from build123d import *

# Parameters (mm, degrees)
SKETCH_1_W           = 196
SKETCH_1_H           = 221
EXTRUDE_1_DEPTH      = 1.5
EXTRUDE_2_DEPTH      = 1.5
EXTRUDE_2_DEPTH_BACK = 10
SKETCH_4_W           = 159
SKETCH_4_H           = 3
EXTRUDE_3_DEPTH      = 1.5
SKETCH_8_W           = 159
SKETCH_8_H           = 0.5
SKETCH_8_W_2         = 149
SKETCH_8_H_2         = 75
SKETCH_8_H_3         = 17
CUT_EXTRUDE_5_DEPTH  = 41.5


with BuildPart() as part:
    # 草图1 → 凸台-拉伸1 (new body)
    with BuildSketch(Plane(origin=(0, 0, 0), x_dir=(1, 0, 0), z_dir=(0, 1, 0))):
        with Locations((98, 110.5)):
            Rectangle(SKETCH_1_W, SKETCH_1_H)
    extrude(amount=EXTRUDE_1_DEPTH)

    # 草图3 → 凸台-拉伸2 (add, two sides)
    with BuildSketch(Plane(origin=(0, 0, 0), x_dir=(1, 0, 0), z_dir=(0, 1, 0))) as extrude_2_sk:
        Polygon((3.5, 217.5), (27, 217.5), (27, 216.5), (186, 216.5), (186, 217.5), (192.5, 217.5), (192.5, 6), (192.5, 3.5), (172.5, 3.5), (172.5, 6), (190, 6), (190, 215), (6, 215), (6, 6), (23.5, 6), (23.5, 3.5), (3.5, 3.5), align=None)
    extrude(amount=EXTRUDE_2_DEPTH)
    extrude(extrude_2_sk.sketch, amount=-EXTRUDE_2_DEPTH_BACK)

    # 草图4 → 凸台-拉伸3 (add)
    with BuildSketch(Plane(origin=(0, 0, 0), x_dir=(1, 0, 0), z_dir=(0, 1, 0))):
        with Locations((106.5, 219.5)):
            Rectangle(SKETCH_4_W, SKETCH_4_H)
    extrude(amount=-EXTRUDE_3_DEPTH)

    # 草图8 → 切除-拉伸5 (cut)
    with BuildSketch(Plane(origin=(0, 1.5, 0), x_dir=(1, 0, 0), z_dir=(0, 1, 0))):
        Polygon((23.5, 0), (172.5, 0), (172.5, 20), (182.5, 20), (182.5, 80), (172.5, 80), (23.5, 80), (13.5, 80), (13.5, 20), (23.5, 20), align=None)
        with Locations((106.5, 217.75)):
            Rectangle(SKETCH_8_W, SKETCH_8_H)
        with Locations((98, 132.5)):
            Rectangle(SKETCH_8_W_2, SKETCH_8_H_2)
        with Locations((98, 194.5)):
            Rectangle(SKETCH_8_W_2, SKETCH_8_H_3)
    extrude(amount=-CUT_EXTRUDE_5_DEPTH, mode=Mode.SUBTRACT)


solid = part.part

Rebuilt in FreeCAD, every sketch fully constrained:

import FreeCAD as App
import Part
import Sketcher


def add_polygon(sketch, points):
    """Adds a closed chain of lines whose ends are joined by coincident constraints."""
    first, n = sketch.GeometryCount, len(points)
    for a, b in zip(points, points[1:] + points[:1]):
        sketch.addGeometry(Part.LineSegment(App.Vector(*a, 0), App.Vector(*b, 0)), False)
    for i in range(n):
        sketch.addConstraint(Sketcher.Constraint("Coincident", first + i, 2, first + (i + 1) % n, 1))

doc = App.newDocument("Part")
params = doc.addObject("Spreadsheet::Sheet", "Params")
for row, (alias, value) in enumerate([
    ("sketch1_width", "196 mm"),
    ("sketch1_height", "221 mm"),
    ("pad1_length", "1.5 mm"),
    ("sketch2_width", "20 mm"),
    ("sketch2_width2", "184 mm"),
    ("sketch2_width3", "159 mm"),
    ("sketch2_height", "214 mm"),
    ("sketch2_height2", "209 mm"),
    ("pad2_length", "1.5 mm"),
    ("pad2_length2", "10 mm"),
    ("sketch3_width", "159 mm"),
    ("sketch3_height", "3 mm"),
    ("pad3_length", "1.5 mm"),
    ("sketch4_width", "149 mm"),
    ("sketch4_width2", "10 mm"),
    ("sketch4_width3", "159 mm"),
    ("sketch4_height", "20 mm"),
    ("sketch4_height2", "60 mm"),
    ("pocket1_length", "41.5 mm"),
], start=1):
    params.set(f"A{row}", alias)
    params.set(f"B{row}", "=" + value)
    params.setAlias(f"B{row}", alias)

body = doc.addObject("PartDesign::Body", "Body")

# Sketch on XZ plane
sketch1 = doc.addObject("Sketcher::SketchObject", "Sketch")
body.addObject(sketch1)
sketch1.AttachmentSupport = (doc.XZ_Plane, [""])
sketch1.MapMode = "FlatFace"
add_polygon(sketch1, [(0, -221), (0, 0), (196, 0), (196, -221)])  # lines 0-3
sketch1.addConstraint([
    Sketcher.Constraint("Vertical", 0),
    Sketcher.Constraint("Horizontal", 1),
    Sketcher.Constraint("Vertical", 2),
    Sketcher.Constraint("Horizontal", 3),
    Sketcher.Constraint("Coincident", 0, 2, -1, 1),
    Sketcher.Constraint("DistanceX", 1, 1, 1, 2, 196.0),
    Sketcher.Constraint("DistanceY", 0, 1, 0, 2, 221.0),
])
sketch1.setExpression("Constraints[9]", "Params.sketch1_width")
sketch1.setExpression("Constraints[10]", "Params.sketch1_height")
pad1 = doc.addObject("PartDesign::Pad", "Pad")
body.addObject(pad1)
pad1.Profile = sketch1
pad1.setExpression("Length", "Params.pad1_length")
pad1.Reversed = True

# Sketch on XZ plane
sketch2 = doc.addObject("Sketcher::SketchObject", "Sketch001")
body.addObject(sketch2)
sketch2.AttachmentSupport = (doc.XZ_Plane, [""])
sketch2.MapMode = "FlatFace"
add_polygon(sketch2, [(27, -217.5), (3.5, -217.5), (3.5, -3.5), (23.5, -3.5), (23.5, -6), (6, -6), (6, -215), (190, -215), (190, -6), (172.5, -6), (172.5, -3.5), (192.5, -3.5), (192.5, -217.5), (186, -217.5), (186, -216.5), (27, -216.5)])  # lines 0-15
sketch2.addConstraint([
    Sketcher.Constraint("Horizontal", 0),
    Sketcher.Constraint("Vertical", 1),
    Sketcher.Constraint("Horizontal", 2),
    Sketcher.Constraint("Vertical", 3),
    Sketcher.Constraint("Horizontal", 4),
    Sketcher.Constraint("Vertical", 5),
    Sketcher.Constraint("Horizontal", 6),
    Sketcher.Constraint("Vertical", 7),
    Sketcher.Constraint("Horizontal", 8),
    Sketcher.Constraint("Vertical", 9),
    Sketcher.Constraint("Horizontal", 10),
    Sketcher.Constraint("Vertical", 11),
    Sketcher.Constraint("Horizontal", 12),
    Sketcher.Constraint("Vertical", 13),
    Sketcher.Constraint("Horizontal", 14),
    Sketcher.Constraint("Vertical", 15),
    Sketcher.Constraint("Horizontal", 4, 2, 7, 2),
    Sketcher.Constraint("Horizontal", 2, 2, 9, 2),
    Sketcher.Constraint("Horizontal", 0, 2, 11, 2),
    Sketcher.Constraint("Equal", 4, 8),
    Sketcher.Constraint("Equal", 2, 10),
    Sketcher.Constraint("DistanceX", 2, 1, 2, 2, 20.0),
    Sketcher.Constraint("DistanceX", 6, 1, 6, 2, 184.0),
    Sketcher.Constraint("DistanceX", 14, 2, 14, 1, 159.0),
    Sketcher.Constraint("DistanceY", 1, 1, 1, 2, 214.0),
    Sketcher.Constraint("DistanceY", 5, 2, 5, 1, 209.0),
    Sketcher.Constraint("DistanceY", 13, 1, 13, 2, 1.0),
    Sketcher.Constraint("DistanceX", 0, 2, 0, 1, 23.5),
    Sketcher.Constraint("DistanceX", 4, 2, 4, 1, 17.5),
    Sketcher.Constraint("DistanceY", 3, 2, 3, 1, 2.5),
    Sketcher.Constraint("DistanceY", 3, 2, -1, 1, 6.0),
    Sketcher.Constraint("DistanceX", -1, 1, 4, 2, 6.0),
])
sketch2.setExpression("Constraints[37]", "Params.sketch2_width")
sketch2.setExpression("Constraints[38]", "Params.sketch2_width2")
sketch2.setExpression("Constraints[39]", "Params.sketch2_width3")
sketch2.setExpression("Constraints[40]", "Params.sketch2_height")
sketch2.setExpression("Constraints[41]", "Params.sketch2_height2")
pad2 = doc.addObject("PartDesign::Pad", "Pad001")
body.addObject(pad2)
pad2.Profile = sketch2
pad2.Type = "TwoLengths"
pad2.setExpression("Length", "Params.pad2_length")
pad2.setExpression("Length2", "Params.pad2_length2")
pad2.Reversed = True

# Sketch on XZ plane
sketch3 = doc.addObject("Sketcher::SketchObject", "Sketch002")
body.addObject(sketch3)
sketch3.AttachmentSupport = (doc.XZ_Plane, [""])
sketch3.MapMode = "FlatFace"
add_polygon(sketch3, [(27, -221), (27, -218), (186, -218), (186, -221)])  # lines 0-3
sketch3.addConstraint([
    Sketcher.Constraint("Vertical", 0),
    Sketcher.Constraint("Horizontal", 1),
    Sketcher.Constraint("Vertical", 2),
    Sketcher.Constraint("Horizontal", 3),
    Sketcher.Constraint("DistanceX", 1, 1, 1, 2, 159.0),
    Sketcher.Constraint("DistanceY", 0, 1, 0, 2, 3.0),
    Sketcher.Constraint("DistanceX", -1, 1, 0, 2, 27.0),
    Sketcher.Constraint("DistanceY", 0, 2, -1, 1, 218.0),
])
sketch3.setExpression("Constraints[8]", "Params.sketch3_width")
sketch3.setExpression("Constraints[9]", "Params.sketch3_height")
pad3 = doc.addObject("PartDesign::Pad", "Pad002")
body.addObject(pad3)
pad3.Profile = sketch3
pad3.setExpression("Length", "Params.pad3_length")

# Sketch on XZ plane
sketch4 = doc.addObject("Sketcher::SketchObject", "Sketch003")
body.addObject(sketch4)
sketch4.AttachmentSupport = (doc.XZ_Plane, [""])
sketch4.MapMode = "FlatFace"
sketch4.AttachmentOffset = App.Placement(App.Vector(0, 0, -1.5), App.Rotation())
add_polygon(sketch4, [(23.5, 0), (172.5, 0), (172.5, -20), (182.5, -20), (182.5, -80), (13.5, -80), (13.5, -20), (23.5, -20)])  # lines 0-7
add_polygon(sketch4, [(27, -218), (27, -217.5), (186, -217.5), (186, -218)])  # lines 8-11
add_polygon(sketch4, [(23.5, -170), (23.5, -95), (172.5, -95), (172.5, -170)])  # lines 12-15
add_polygon(sketch4, [(23.5, -203), (23.5, -186), (172.5, -186), (172.5, -203)])  # lines 16-19
sketch4.addConstraint([
    Sketcher.Constraint("Horizontal", 0),
    Sketcher.Constraint("Vertical", 1),
    Sketcher.Constraint("Horizontal", 2),
    Sketcher.Constraint("Vertical", 3),
    Sketcher.Constraint("Horizontal", 4),
    Sketcher.Constraint("Vertical", 5),
    Sketcher.Constraint("Horizontal", 6),
    Sketcher.Constraint("Vertical", 7),
    Sketcher.Constraint("Vertical", 8),
    Sketcher.Constraint("Horizontal", 9),
    Sketcher.Constraint("Vertical", 10),
    Sketcher.Constraint("Horizontal", 11),
    Sketcher.Constraint("Vertical", 12),
    Sketcher.Constraint("Horizontal", 13),
    Sketcher.Constraint("Vertical", 14),
    Sketcher.Constraint("Horizontal", 15),
    Sketcher.Constraint("Vertical", 16),
    Sketcher.Constraint("Horizontal", 17),
    Sketcher.Constraint("Vertical", 18),
    Sketcher.Constraint("Horizontal", 19),
    Sketcher.Constraint("PointOnObject", 0, 2, -1),
    Sketcher.Constraint("Horizontal", 2, 2, 5, 2),
    Sketcher.Constraint("Vertical", 7, 2, 12, 2),
    Sketcher.Constraint("Vertical", 1, 2, 13, 2),
    Sketcher.Constraint("Vertical", 15, 2, 16, 2),
    Sketcher.Constraint("Vertical", 14, 2, 17, 2),
    Sketcher.Constraint("Equal", 2, 6),
    Sketcher.Constraint("DistanceX", 0, 1, 0, 2, 149.0),
    Sketcher.Constraint("DistanceX", 2, 1, 2, 2, 10.0),
    Sketcher.Constraint("DistanceX", 9, 1, 9, 2, 159.0),
    Sketcher.Constraint("DistanceY", 1, 2, 1, 1, 20.0),
    Sketcher.Constraint("DistanceY", 3, 2, 3, 1, 60.0),
    Sketcher.Constraint("DistanceY", 12, 1, 12, 2, 75.0),
    Sketcher.Constraint("DistanceY", 16, 1, 16, 2, 17.0),
    Sketcher.Constraint("DistanceY", 8, 1, 8, 2, 0.5),
    Sketcher.Constraint("DistanceX", -1, 1, 8, 2, 27.0),
    Sketcher.Constraint("DistanceY", 10, 2, -1, 1, 218.0),
    Sketcher.Constraint("DistanceY", 12, 2, -1, 1, 95.0),
    Sketcher.Constraint("DistanceY", 16, 2, -1, 1, 186.0),
    Sketcher.Constraint("DistanceX", -1, 1, 0, 2, 172.5),
])
sketch4.setExpression("Constraints[47]", "Params.sketch4_width")
sketch4.setExpression("Constraints[48]", "Params.sketch4_width2")
sketch4.setExpression("Constraints[49]", "Params.sketch4_width3")
sketch4.setExpression("Constraints[50]", "Params.sketch4_height")
sketch4.setExpression("Constraints[51]", "Params.sketch4_height2")
pocket1 = doc.addObject("PartDesign::Pocket", "Pocket")
body.addObject(pocket1)
pocket1.Profile = sketch4
pocket1.setExpression("Length", "Params.pocket1_length")
pocket1.Reversed = True

doc.recompute()
